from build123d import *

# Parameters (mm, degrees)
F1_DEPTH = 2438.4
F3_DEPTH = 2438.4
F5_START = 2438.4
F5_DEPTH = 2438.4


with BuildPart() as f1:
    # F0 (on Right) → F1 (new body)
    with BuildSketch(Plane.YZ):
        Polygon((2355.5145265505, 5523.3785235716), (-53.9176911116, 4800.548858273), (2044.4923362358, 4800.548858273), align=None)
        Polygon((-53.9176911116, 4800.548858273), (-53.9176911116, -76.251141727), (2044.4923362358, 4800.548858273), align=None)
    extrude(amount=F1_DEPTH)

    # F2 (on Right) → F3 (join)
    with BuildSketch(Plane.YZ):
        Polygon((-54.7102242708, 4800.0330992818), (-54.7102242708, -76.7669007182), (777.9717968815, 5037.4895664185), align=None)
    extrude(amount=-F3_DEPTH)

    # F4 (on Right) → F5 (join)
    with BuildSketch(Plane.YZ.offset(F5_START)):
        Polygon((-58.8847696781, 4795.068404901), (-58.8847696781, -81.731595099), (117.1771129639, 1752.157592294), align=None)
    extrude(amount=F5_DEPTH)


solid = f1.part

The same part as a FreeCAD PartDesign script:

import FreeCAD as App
import Part
import Sketcher
Q = App.Units.Quantity

doc = App.newDocument("Part")
body = doc.addObject("PartDesign::Body", "Body")

sketch1 = body.newObject("Sketcher::SketchObject", "Sketch")
sketch1.AttachmentSupport = (doc.getObject("YZ_Plane"), [""])
sketch1.MapMode = "FlatFace"
sketch1.addGeometry(Part.LineSegment(App.Vector(2356, 5523, 0), App.Vector(-54, 4801, 0)), False)
sketch1.addGeometry(Part.LineSegment(App.Vector(-54, 4801, 0), App.Vector(-54, -76, 0)), False)
sketch1.addGeometry(Part.LineSegment(App.Vector(-54, -76, 0), App.Vector(2356, 5523, 0)), False)
sketch1.addConstraint(Sketcher.Constraint("Coincident", 0, 2, 1, 1))
sketch1.addConstraint(Sketcher.Constraint("Coincident", 1, 2, 2, 1))
sketch1.addConstraint(Sketcher.Constraint("Coincident", 2, 2, 0, 1))
sketch1.addConstraint(Sketcher.Constraint("Vertical", 1))
sketch1.addConstraint(Sketcher.Constraint("DistanceY", 1, 2, 1, 1, Q("192 in")))
sketch1.addConstraint(Sketcher.Constraint("Distance", 2, Q("240 in")))
sketch1.addConstraint(Sketcher.Constraint("DistanceX", 0, 2, -1, 1, Q("53.917691 mm")))
sketch1.addConstraint(Sketcher.Constraint("DistanceY", -1, 1, 0, 2, Q("4800.548858 mm")))
sketch1.addConstraint(Sketcher.Constraint("Distance", 0, Q("2515.521086 mm")))
pad1 = body.newObject("PartDesign::Pad", "Pad")
pad1.Profile = sketch1
pad1.Length = Q("96 in")

sketch2 = body.newObject("Sketcher::SketchObject", "Sketch001")
sketch2.AttachmentSupport = (doc.getObject("YZ_Plane"), [""])
sketch2.MapMode = "FlatFace"
sketch2.addGeometry(Part.LineSegment(App.Vector(-55, 4800, 0), App.Vector(-55, -77, 0)), False)
sketch2.addGeometry(Part.LineSegment(App.Vector(-55, -77, 0), App.Vector(778, 5037, 0)), False)
sketch2.addGeometry(Part.LineSegment(App.Vector(778, 5037, 0), App.Vector(-55, 4800, 0)), False)
sketch2.addConstraint(Sketcher.Constraint("Coincident", 0, 2, 1, 1))
sketch2.addConstraint(Sketcher.Constraint("Coincident", 1, 2, 2, 1))
sketch2.addConstraint(Sketcher.Constraint("Coincident", 2, 2, 0, 1))
sketch2.addConstraint(Sketcher.Constraint("Vertical", 0))
sketch2.addConstraint(Sketcher.Constraint("DistanceY", 0, 2, 0, 1, Q("192 in")))
sketch2.addConstraint(Sketcher.Constraint("Distance", 1, Q("204 in")))
sketch2.addConstraint(Sketcher.Constraint("DistanceY", 0, 2, -1, 1, Q("76.766901 mm")))
sketch2.addConstraint(Sketcher.Constraint("Distance", 2, Q("865.878122 mm")))
sketch2.addConstraint(Sketcher.Constraint("DistanceX", 0, 2, -1, 1, Q("54.710224 mm")))
pad2 = body.newObject("PartDesign::Pad", "Pad001")
pad2.Profile = sketch2
pad2.Length = Q("96 in")
pad2.Reversed = True

sketch3 = body.newObject("Sketcher::SketchObject", "Sketch002")
sketch3.AttachmentSupport = (doc.getObject("YZ_Plane"), [""])
sketch3.MapMode = "FlatFace"
sketch3.AttachmentOffset = App.Placement(App.Vector(0, 0, 96 * 25.4), App.Rotation())
sketch3.addGeometry(Part.LineSegment(App.Vector(-59, 4795, 0), App.Vector(-59, -82, 0)), False)
sketch3.addGeometry(Part.LineSegment(App.Vector(-59, -82, 0), App.Vector(117, 1752, 0)), False)
sketch3.addGeometry(Part.LineSegment(App.Vector(117, 1752, 0), App.Vector(-59, 4795, 0)), False)
sketch3.addConstraint(Sketcher.Constraint("Coincident", 0, 2, 1, 1))
sketch3.addConstraint(Sketcher.Constraint("Coincident", 1, 2, 2, 1))
sketch3.addConstraint(Sketcher.Constraint("Coincident", 2, 2, 0, 1))
sketch3.addConstraint(Sketcher.Constraint("Vertical", 0))
sketch3.addConstraint(Sketcher.Constraint("DistanceY", 0, 2, 0, 1, Q("192 in")))
sketch3.addConstraint(Sketcher.Constraint("Distance", 2, Q("120 in")))
sketch3.addConstraint(Sketcher.Constraint("DistanceX", 0, 2, -1, 1, Q("58.88477 mm")))
sketch3.addConstraint(Sketcher.Constraint("Distance", 1, Q("1842.321182 mm")))
sketch3.addConstraint(Sketcher.Constraint("DistanceY", 0, 2, -1, 1, Q("81.731595 mm")))
pad3 = body.newObject("PartDesign::Pad", "Pad002")
pad3.Profile = sketch3
pad3.Length = Q("96 in")

doc.recompute()
